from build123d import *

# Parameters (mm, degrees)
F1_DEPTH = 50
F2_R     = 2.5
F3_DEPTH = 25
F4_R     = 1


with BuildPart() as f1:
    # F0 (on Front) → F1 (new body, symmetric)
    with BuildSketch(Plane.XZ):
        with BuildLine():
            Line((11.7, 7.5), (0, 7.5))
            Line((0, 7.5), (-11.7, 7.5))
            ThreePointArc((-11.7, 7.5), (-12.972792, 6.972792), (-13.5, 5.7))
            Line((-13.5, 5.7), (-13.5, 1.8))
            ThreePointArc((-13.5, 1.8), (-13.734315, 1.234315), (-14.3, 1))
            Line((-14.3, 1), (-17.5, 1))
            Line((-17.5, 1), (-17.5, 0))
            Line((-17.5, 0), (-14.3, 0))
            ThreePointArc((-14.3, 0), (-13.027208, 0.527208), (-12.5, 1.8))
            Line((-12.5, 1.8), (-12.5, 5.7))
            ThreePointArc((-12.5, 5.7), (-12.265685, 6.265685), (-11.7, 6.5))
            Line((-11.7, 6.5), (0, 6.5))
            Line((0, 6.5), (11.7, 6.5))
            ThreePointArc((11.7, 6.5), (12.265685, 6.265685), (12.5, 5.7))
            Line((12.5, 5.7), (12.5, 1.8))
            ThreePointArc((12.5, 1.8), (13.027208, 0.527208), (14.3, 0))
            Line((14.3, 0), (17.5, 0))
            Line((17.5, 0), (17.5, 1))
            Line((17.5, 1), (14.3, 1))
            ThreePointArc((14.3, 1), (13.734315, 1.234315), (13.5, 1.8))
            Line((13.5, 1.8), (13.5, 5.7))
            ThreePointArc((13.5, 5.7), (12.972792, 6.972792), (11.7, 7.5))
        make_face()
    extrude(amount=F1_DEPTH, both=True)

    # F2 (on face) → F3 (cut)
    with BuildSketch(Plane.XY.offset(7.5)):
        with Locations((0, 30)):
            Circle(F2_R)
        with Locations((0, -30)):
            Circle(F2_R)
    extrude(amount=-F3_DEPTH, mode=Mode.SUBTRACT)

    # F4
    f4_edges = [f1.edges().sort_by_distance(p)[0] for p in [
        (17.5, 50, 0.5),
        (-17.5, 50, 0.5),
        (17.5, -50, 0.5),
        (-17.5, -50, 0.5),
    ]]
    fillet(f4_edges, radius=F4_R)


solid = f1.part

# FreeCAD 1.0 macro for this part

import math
import FreeCAD as App
import Part
import Sketcher

V = App.Vector
Q = App.Units.Quantity


def edges_at(feature, points):
    """Names of the edges that pass closest to the given points."""
    edges = feature.Shape.Edges
    near = lambda p: min(range(len(edges)), key=lambda i: edges[i].distToShape(Part.Vertex(*p))[0])
    return sorted({f"Edge{near(p) + 1}" for p in points})

doc = App.newDocument("Part")
params = doc.addObject("Spreadsheet::Sheet", "Params")
for row, (alias, value) in enumerate([
    ("sketch1_radius", "1.800001 mm"),
    ("sketch1_radius2", "0.800001 mm"),
    ("sketch1_width", "23.4 mm"),
    ("sketch1_width2", "3.2 mm"),
    ("sketch1_height", "3.9 mm"),
    ("pad1_length", "100 mm"),
    ("sketch2_diameter", "5 mm"),
    ("pocket1_length", "25 mm"),
    ("fillet_radius", "1 mm"),
], start=1):
    params.set(f"A{row}", alias)
    params.set(f"B{row}", "=" + value)
    params.setAlias(f"B{row}", alias)

body = doc.addObject("PartDesign::Body", "Body")

# Sketch on XZ plane
sketch1 = body.newObject("Sketcher::SketchObject", "Sketch")
sketch1.AttachmentSupport = (doc.getObject("XZ_Plane"), [""])
sketch1.MapMode = "FlatFace"
sketch1.addGeometry([
    Part.LineSegment(V(11.7, 7.5, 0), V(-11.7, 7.5, 0)),  # 0
    Part.ArcOfCircle(Part.Circle(V(-11.7, 5.7, 0), V(0, 0, 1), 1.8), math.radians(90), math.radians(180)),  # 1
    Part.LineSegment(V(-13.5, 5.7, 0), V(-13.5, 1.8, 0)),  # 2
    Part.ArcOfCircle(Part.Circle(V(-14.3, 1.8, 0), V(0, 0, 1), 0.8), math.radians(-90), math.radians(0)),  # 3
    Part.LineSegment(V(-14.3, 1, 0), V(-17.5, 1, 0)),  # 4
    Part.LineSegment(V(-17.5, 1, 0), V(-17.5, 0, 0)),  # 5
    Part.LineSegment(V(-17.5, 0, 0), V(-14.3, 0, 0)),  # 6
    Part.ArcOfCircle(Part.Circle(V(-14.3, 1.8, 0), V(0, 0, 1), 1.8), math.radians(-90), math.radians(0)),  # 7
    Part.LineSegment(V(-12.5, 1.8, 0), V(-12.5, 5.7, 0)),  # 8
    Part.ArcOfCircle(Part.Circle(V(-11.7, 5.7, 0), V(0, 0, 1), 0.8), math.radians(90), math.radians(180)),  # 9
    Part.LineSegment(V(-11.7, 6.5, 0), V(11.7, 6.5, 0)),  # 10
    Part.ArcOfCircle(Part.Circle(V(11.7, 5.7, 0), V(0, 0, 1), 0.8), math.radians(0), math.radians(90)),  # 11
    Part.LineSegment(V(12.5, 5.7, 0), V(12.5, 1.8, 0)),  # 12
    Part.ArcOfCircle(Part.Circle(V(14.3, 1.8, 0), V(0, 0, 1), 1.8), math.radians(-180), math.radians(-90)),  # 13
    Part.LineSegment(V(14.3, 0, 0), V(17.5, 0, 0)),  # 14
    Part.LineSegment(V(17.5, 0, 0), V(17.5, 1, 0)),  # 15
    Part.LineSegment(V(17.5, 1, 0), V(14.3, 1, 0)),  # 16
    Part.ArcOfCircle(Part.Circle(V(14.3, 1.8, 0), V(0, 0, 1), 0.8), math.radians(-180), math.radians(-90)),  # 17
    Part.LineSegment(V(13.5, 1.8, 0), V(13.5, 5.7, 0)),  # 18
    Part.ArcOfCircle(Part.Circle(V(11.7, 5.7, 0), V(0, 0, 1), 1.8), math.radians(0), math.radians(90)),  # 19
], False)
sketch1.addConstraint([
    Sketcher.Constraint("Tangent", 0, 2, 1, 1),
    Sketcher.Constraint("Tangent", 1, 2, 2, 1),
    Sketcher.Constraint("Tangent", 2, 2, 3, 2),
    Sketcher.Constraint("Tangent", 3, 1, 4, 1),
    Sketcher.Constraint("Coincident", 4, 2, 5, 1),
    Sketcher.Constraint("Coincident", 5, 2, 6, 1),
    Sketcher.Constraint("Tangent", 6, 2, 7, 1),
    Sketcher.Constraint("Tangent", 7, 2, 8, 1),
    Sketcher.Constraint("Tangent", 8, 2, 9, 2),
    Sketcher.Constraint("Tangent", 9, 1, 10, 1),
    Sketcher.Constraint("Tangent", 10, 2, 11, 2),
    Sketcher.Constraint("Tangent", 11, 1, 12, 1),
    Sketcher.Constraint("Tangent", 12, 2, 13, 1),
    Sketcher.Constraint("Tangent", 13, 2, 14, 1),
    Sketcher.Constraint("Coincident", 14, 2, 15, 1),
    Sketcher.Constraint("Coincident", 15, 2, 16, 1),
    Sketcher.Constraint("Tangent", 16, 2, 17, 2),
    Sketcher.Constraint("Tangent", 17, 1, 18, 1),
    Sketcher.Constraint("Tangent", 18, 2, 19, 1),
    Sketcher.Constraint("Tangent", 19, 2, 0, 1),
    Sketcher.Constraint("Horizontal", 0),
    Sketcher.Constraint("Vertical", 2),
    Sketcher.Constraint("Horizontal", 4),
    Sketcher.Constraint("Vertical", 5),
    Sketcher.Constraint("Horizontal", 6),
    Sketcher.Constraint("Vertical", 8),
    Sketcher.Constraint("Horizontal", 10),
    Sketcher.Constraint("Vertical", 12),
    Sketcher.Constraint("Horizontal", 14),
    Sketcher.Constraint("Vertical", 15),
    Sketcher.Constraint("Horizontal", 16),
    Sketcher.Constraint("Vertical", 18),
    Sketcher.Constraint("Coincident", 7, 3, 3, 3),
    Sketcher.Constraint("Coincident", 9, 3, 1, 3),
    Sketcher.Constraint("Coincident", 17, 3, 13, 3),
    Sketcher.Constraint("Coincident", 19, 3, 11, 3),
    Sketcher.Constraint("Equal", 1, 7),
    Sketcher.Constraint("Equal", 9, 11),
    Sketcher.Constraint("Equal", 7, 13),
    Sketcher.Constraint("Symmetric", 6, 2, 13, 2, -1, 1),
    Sketcher.Constraint("Symmetric", 5, 2, 14, 2, -2),
    Sketcher.Constraint("Radius", 1, Q("1.800001 mm")),
    Sketcher.Constraint("Radius", 3, Q("0.800001 mm")),
    Sketcher.Constraint("DistanceX", 0, 2, 0, 1, Q("23.4 mm")),
    Sketcher.Constraint("DistanceX", 4, 2, 4, 1, Q("3.2 mm")),
    Sketcher.Constraint("DistanceY", 2, 2, 2, 1, Q("3.9 mm")),
])
sketch1.setExpression("Constraints[41]", "Params.sketch1_radius")
sketch1.setExpression("Constraints[42]", "Params.sketch1_radius2")
sketch1.setExpression("Constraints[43]", "Params.sketch1_width")
sketch1.setExpression("Constraints[44]", "Params.sketch1_width2")
sketch1.setExpression("Constraints[45]", "Params.sketch1_height")
pad1 = body.newObject("PartDesign::Pad", "Pad")
pad1.Profile = sketch1
pad1.setExpression("Length", "Params.pad1_length")
pad1.Midplane = True

# Sketch on XY plane
sketch2 = body.newObject("Sketcher::SketchObject", "Sketch001")
sketch2.AttachmentSupport = (doc.getObject("XY_Plane"), [""])
sketch2.MapMode = "FlatFace"
sketch2.AttachmentOffset = App.Placement(V(0, 0, 7.5), App.Rotation())
sketch2.addGeometry([
    Part.Circle(V(0, 30, 0), V(0, 0, 1), 2.5),
    Part.Circle(V(0, -30, 0), V(0, 0, 1), 2.5),
], False)
sketch2.addConstraint([
    Sketcher.Constraint("Equal", 0, 1),
    Sketcher.Constraint("Symmetric", 0, 3, 1, 3, -1, 1),
    Sketcher.Constraint("PointOnObject", 0, 3, -2),
    Sketcher.Constraint("Diameter", 0, Q("5 mm")),
    Sketcher.Constraint("DistanceY", -1, 1, 0, 3, Q("30 mm")),
])
sketch2.setExpression("Constraints[3]", "Params.sketch2_diameter")
pocket1 = body.newObject("PartDesign::Pocket", "Pocket")
pocket1.Profile = sketch2
pocket1.setExpression("Length", "Params.pocket1_length")
doc.recompute()

fillet = body.newObject("PartDesign::Fillet", "Fillet")
fillet.Base = (pocket1, edges_at(pocket1, [
    (17.5, 50, 0.5),
    (-17.5, 50, 0.5),
    (17.5, -50, 0.5),
    (-17.5, -50, 0.5),
]))
fillet.setExpression("Radius", "Params.fillet_radius")

doc.recompute()
